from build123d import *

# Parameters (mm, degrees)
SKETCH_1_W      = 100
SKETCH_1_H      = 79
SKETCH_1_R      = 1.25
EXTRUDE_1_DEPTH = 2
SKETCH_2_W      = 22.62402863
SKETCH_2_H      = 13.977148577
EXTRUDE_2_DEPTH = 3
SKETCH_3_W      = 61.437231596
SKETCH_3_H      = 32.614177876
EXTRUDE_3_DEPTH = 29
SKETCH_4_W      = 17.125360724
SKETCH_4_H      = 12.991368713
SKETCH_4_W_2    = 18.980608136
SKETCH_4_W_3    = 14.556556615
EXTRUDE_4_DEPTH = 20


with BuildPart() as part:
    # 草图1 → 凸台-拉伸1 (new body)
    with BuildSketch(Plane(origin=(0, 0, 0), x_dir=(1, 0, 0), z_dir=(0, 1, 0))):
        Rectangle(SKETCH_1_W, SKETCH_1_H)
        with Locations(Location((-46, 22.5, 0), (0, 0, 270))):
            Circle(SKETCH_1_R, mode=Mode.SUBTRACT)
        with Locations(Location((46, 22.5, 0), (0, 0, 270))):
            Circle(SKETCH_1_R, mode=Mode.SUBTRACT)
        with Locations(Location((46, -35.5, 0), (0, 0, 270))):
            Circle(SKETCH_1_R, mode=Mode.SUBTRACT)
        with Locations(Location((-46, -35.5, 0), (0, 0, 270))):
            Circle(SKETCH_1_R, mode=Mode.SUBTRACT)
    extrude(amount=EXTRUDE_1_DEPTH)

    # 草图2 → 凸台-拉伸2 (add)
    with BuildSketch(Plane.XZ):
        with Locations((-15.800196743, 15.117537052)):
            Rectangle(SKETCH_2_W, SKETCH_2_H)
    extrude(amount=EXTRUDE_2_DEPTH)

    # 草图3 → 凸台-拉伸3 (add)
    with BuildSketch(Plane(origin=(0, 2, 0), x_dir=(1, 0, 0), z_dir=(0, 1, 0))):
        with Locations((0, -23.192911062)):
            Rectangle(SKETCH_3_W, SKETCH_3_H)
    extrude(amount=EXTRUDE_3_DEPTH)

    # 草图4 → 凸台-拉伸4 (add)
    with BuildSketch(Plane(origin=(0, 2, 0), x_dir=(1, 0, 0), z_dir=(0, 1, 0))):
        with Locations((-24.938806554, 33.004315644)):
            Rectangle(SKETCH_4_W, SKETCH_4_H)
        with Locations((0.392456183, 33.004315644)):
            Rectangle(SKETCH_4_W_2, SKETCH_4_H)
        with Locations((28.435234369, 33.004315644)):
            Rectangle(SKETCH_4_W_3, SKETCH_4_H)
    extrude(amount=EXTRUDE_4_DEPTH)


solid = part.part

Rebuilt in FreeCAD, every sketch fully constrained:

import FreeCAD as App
import Part
import Sketcher

V = App.Vector


def add_polygon(sketch, points):
    """Adds a closed chain of lines whose ends are joined by coincident constraints."""
    first, n = sketch.GeometryCount, len(points)
    for a, b in zip(points, points[1:] + points[:1]):
        sketch.addGeometry(Part.LineSegment(App.Vector(*a, 0), App.Vector(*b, 0)), False)
    for i in range(n):
        sketch.addConstraint(Sketcher.Constraint("Coincident", first + i, 2, first + (i + 1) % n, 1))

doc = App.newDocument("Part")
body = doc.addObject("PartDesign::Body", "Body")

# Sketch on XZ plane
sketch1 = doc.addObject("Sketcher::SketchObject", "Sketch")
body.addObject(sketch1)
sketch1.AttachmentSupport = (doc.XZ_Plane, [""])
sketch1.MapMode = "FlatFace"
add_polygon(sketch1, [(-50, -39.5), (-50, 39.5), (50, 39.5), (50, -39.5)])  # lines 0-3
sketch1.addGeometry(Part.Circle(V(-46, 35.5, 0), V(0, 0, 1), 1.2), False)  # 4
sketch1.addGeometry(Part.Circle(V(46, 35.5, 0), V(0, 0, 1), 1.2), False)  # 5
sketch1.addGeometry(Part.Circle(V(-46, -22.5, 0), V(0, 0, 1), 1.2), False)  # 6
sketch1.addGeometry(Part.Circle(V(46, -22.5, 0), V(0, 0, 1), 1.2), False)  # 7
sketch1.addConstraint([
    Sketcher.Constraint("Vertical", 0),
    Sketcher.Constraint("Horizontal", 1),
    Sketcher.Constraint("Vertical", 2),
    Sketcher.Constraint("Horizontal", 3),
    Sketcher.Constraint("Equal", 4, 5),
    Sketcher.Constraint("Equal", 5, 6),
    Sketcher.Constraint("Equal", 6, 7),
    Sketcher.Constraint("Symmetric", 0, 2, 2, 2, -1, 1),
    Sketcher.Constraint("Symmetric", 4, 3, 5, 3, -2),
    Sketcher.Constraint("Symmetric", 6, 3, 7, 3, -2),
    Sketcher.Constraint("Vertical", 4, 3, 6, 3),
    Sketcher.Constraint("Diameter", 4, 2.5),
    Sketcher.Constraint("DistanceX", 1, 1, 1, 2, 100.0),
    Sketcher.Constraint("DistanceY", 0, 1, 0, 2, 79.0),
    Sketcher.Constraint("DistanceX", 4, 3, -1, 1, 46.0),
    Sketcher.Constraint("DistanceY", 6, 3, 4, 3, 58.0),
    Sketcher.Constraint("DistanceY", 4, 3, 0, 2, 4.0),
])
pad1 = doc.addObject("PartDesign::Pad", "Pad")
body.addObject(pad1)
pad1.Profile = sketch1
pad1.Length = 2
pad1.Reversed = True

# Sketch on XZ plane
sketch2 = doc.addObject("Sketcher::SketchObject", "Sketch001")
body.addObject(sketch2)
sketch2.AttachmentSupport = (doc.XZ_Plane, [""])
sketch2.MapMode = "FlatFace"
add_polygon(sketch2, [(-27, 22), (-27, 8), (-4, 8), (-4, 22)])  # lines 0-3
sketch2.addConstraint([
    Sketcher.Constraint("Vertical", 0),
    Sketcher.Constraint("Horizontal", 1),
    Sketcher.Constraint("Vertical", 2),
    Sketcher.Constraint("Horizontal", 3),
    Sketcher.Constraint("DistanceX", 1, 1, 1, 2, 22.624029),
    Sketcher.Constraint("DistanceY", 0, 2, 0, 1, 13.977149),
    Sketcher.Constraint("DistanceX", 0, 2, -1, 1, 27.112211),
    Sketcher.Constraint("DistanceY", -1, 1, 2, 2, 22.106111),
])
pad2 = doc.addObject("PartDesign::Pad", "Pad001")
body.addObject(pad2)
pad2.Profile = sketch2
pad2.Length = 3

# Sketch on XZ plane
sketch3 = doc.addObject("Sketcher::SketchObject", "Sketch002")
body.addObject(sketch3)
sketch3.AttachmentSupport = (doc.XZ_Plane, [""])
sketch3.MapMode = "FlatFace"
sketch3.AttachmentOffset = App.Placement(V(0, 0, -2), App.Rotation())
add_polygon(sketch3, [(-31, 7), (-31, 40), (31, 40), (31, 7)])  # lines 0-3
sketch3.addConstraint([
    Sketcher.Constraint("Vertical", 0),
    Sketcher.Constraint("Horizontal", 1),
    Sketcher.Constraint("Vertical", 2),
    Sketcher.Constraint("Horizontal", 3),
    Sketcher.Constraint("DistanceY", -1, 1, 0, 2, 39.5),
    Sketcher.Constraint("DistanceX", 1, 1, 1, 2, 61.437232),
    Sketcher.Constraint("DistanceY", 0, 1, 0, 2, 32.614178),
    Sketcher.Constraint("DistanceX", 0, 2, -1, 1, 30.718616),
])
pad3 = doc.addObject("PartDesign::Pad", "Pad002")
body.addObject(pad3)
pad3.Profile = sketch3
pad3.Length = 29
pad3.Reversed = True

# Sketch on XZ plane
sketch4 = doc.addObject("Sketcher::SketchObject", "Sketch003")
body.addObject(sketch4)
sketch4.AttachmentSupport = (doc.XZ_Plane, [""])
sketch4.MapMode = "FlatFace"
sketch4.AttachmentOffset = App.Placement(V(0, 0, -2), App.Rotation())
add_polygon(sketch4, [(-34, -40), (-34, -27), (-16, -27), (-16, -40)])  # lines 0-3
add_polygon(sketch4, [(-9, -40), (-9, -27), (10, -27), (10, -40)])  # lines 4-7
add_polygon(sketch4, [(21, -40), (21, -27), (36, -27), (36, -40)])  # lines 8-11
sketch4.addConstraint([
    Sketcher.Constraint("Vertical", 0),
    Sketcher.Constraint("Horizontal", 1),
    Sketcher.Constraint("Vertical", 2),
    Sketcher.Constraint("Horizontal", 3),
    Sketcher.Constraint("Vertical", 4),
    Sketcher.Constraint("Horizontal", 5),
    Sketcher.Constraint("Vertical", 6),
    Sketcher.Constraint("Horizontal", 7),
    Sketcher.Constraint("Vertical", 8),
    Sketcher.Constraint("Horizontal", 9),
    Sketcher.Constraint("Vertical", 10),
    Sketcher.Constraint("Horizontal", 11),
    Sketcher.Constraint("Horizontal", 1, 2, 4, 2),
    Sketcher.Constraint("Horizontal", 3, 2, 6, 2),
    Sketcher.Constraint("Horizontal", 5, 2, 8, 2),
    Sketcher.Constraint("Horizontal", 7, 2, 10, 2),
    Sketcher.Constraint("DistanceY", 2, 2, -1, 1, 39.5),
    Sketcher.Constraint("DistanceX", 1, 1, 1, 2, 17.125361),
    Sketcher.Constraint("DistanceX", 5, 1, 5, 2, 18.980608),
    Sketcher.Constraint("DistanceY", 0, 1, 0, 2, 12.991369),
    Sketcher.Constraint("DistanceX", 9, 1, 9, 2, 14.556557),
    Sketcher.Constraint("DistanceX", -1, 1, 5, 2, 9.88276),
    Sketcher.Constraint("DistanceX", 1, 2, 4, 2, 7.278278),
    Sketcher.Constraint("DistanceX", 4, 2, 9, 2, 44.811361),
])
pad4 = doc.addObject("PartDesign::Pad", "Pad003")
body.addObject(pad4)
pad4.Profile = sketch4
pad4.Length = 20
pad4.Reversed = True

doc.recompute()
